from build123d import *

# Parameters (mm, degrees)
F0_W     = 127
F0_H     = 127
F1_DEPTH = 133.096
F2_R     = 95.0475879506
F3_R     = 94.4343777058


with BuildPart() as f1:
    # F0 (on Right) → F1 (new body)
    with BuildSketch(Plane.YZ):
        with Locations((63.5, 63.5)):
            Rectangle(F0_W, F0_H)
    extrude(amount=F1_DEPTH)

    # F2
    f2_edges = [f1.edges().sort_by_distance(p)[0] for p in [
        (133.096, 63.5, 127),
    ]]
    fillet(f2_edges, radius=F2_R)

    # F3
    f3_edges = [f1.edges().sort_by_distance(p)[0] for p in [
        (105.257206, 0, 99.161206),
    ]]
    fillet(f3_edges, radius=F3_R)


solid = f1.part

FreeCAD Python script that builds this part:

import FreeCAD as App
import Part
import Sketcher
Q = App.Units.Quantity


def edges_at(feature, points):
    """Names of the edges that pass closest to the given points."""
    edges = feature.Shape.Edges
    near = lambda p: min(range(len(edges)), key=lambda i: edges[i].distToShape(Part.Vertex(*p))[0])
    return sorted({f"Edge{near(p) + 1}" for p in points})


def add_polygon(sketch, points):
    """Adds a closed chain of lines whose ends are joined by coincident constraints."""
    first, n = sketch.GeometryCount, len(points)
    for a, b in zip(points, points[1:] + points[:1]):
        sketch.addGeometry(Part.LineSegment(App.Vector(*a, 0), App.Vector(*b, 0)), False)
    for i in range(n):
        sketch.addConstraint(Sketcher.Constraint("Coincident", first + i, 2, first + (i + 1) % n, 1))

doc = App.newDocument("Part")
body = doc.addObject("PartDesign::Body", "Body")

# Sketch on YZ plane
sketch1 = body.newObject("Sketcher::SketchObject", "Sketch")
sketch1.AttachmentSupport = (doc.getObject("YZ_Plane"), [""])
sketch1.MapMode = "FlatFace"
add_polygon(sketch1, [(0, 127), (0, 0), (127, 0), (127, 127)])  # lines 0-3
sketch1.addConstraint(Sketcher.Constraint("Vertical", 0))
sketch1.addConstraint(Sketcher.Constraint("Horizontal", 1))
sketch1.addConstraint(Sketcher.Constraint("Vertical", 2))
sketch1.addConstraint(Sketcher.Constraint("Horizontal", 3))
sketch1.addConstraint(Sketcher.Constraint("Coincident", 0, 2, -1, 1))
sketch1.addConstraint(Sketcher.Constraint("Equal", 3, 0))
sketch1.addConstraint(Sketcher.Constraint("DistanceX", 1, 1, 1, 2, Q("5 in")))
pad1 = body.newObject("PartDesign::Pad", "Pad")
pad1.Profile = sketch1
pad1.Length = Q("5.24 in")
doc.recompute()

fillet = body.newObject("PartDesign::Fillet", "Fillet")
fillet.Base = (pad1, edges_at(pad1, [(133.096, 63.5, 127)]))
fillet.Radius = 95.047588
doc.recompute()

fillet2 = body.newObject("PartDesign::Fillet", "Fillet001")
fillet2.Base = (fillet, edges_at(fillet, [(105.257, 0, 99.161)]))
fillet2.Radius = 94.434378

doc.recompute()
